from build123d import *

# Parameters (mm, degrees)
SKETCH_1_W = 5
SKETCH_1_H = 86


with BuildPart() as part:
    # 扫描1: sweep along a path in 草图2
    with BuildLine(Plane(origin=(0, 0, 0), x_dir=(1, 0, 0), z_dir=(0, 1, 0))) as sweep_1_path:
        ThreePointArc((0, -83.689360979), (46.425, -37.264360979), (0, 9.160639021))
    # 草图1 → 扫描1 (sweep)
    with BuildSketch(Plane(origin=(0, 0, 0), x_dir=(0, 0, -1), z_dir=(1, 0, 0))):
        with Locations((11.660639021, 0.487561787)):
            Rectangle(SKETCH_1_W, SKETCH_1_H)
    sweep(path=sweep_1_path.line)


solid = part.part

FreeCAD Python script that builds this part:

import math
import FreeCAD as App
import Part
import Sketcher
from FreeCAD import Vector

doc = App.newDocument("Part")
params = doc.addObject("Spreadsheet::Sheet", "Params")
for row, (alias, value) in enumerate([
    ("sketch1_width", "86 mm"),
    ("sketch1_height", "5 mm"),
], start=1):
    params.set(f"A{row}", alias)
    params.set(f"B{row}", "=" + value)
    params.setAlias(f"B{row}", alias)

body = doc.addObject("PartDesign::Body", "Body")

# Sketch on YZ plane
sketch1 = doc.addObject("Sketcher::SketchObject", "Sketch")
body.addObject(sketch1)
sketch1.AttachmentSupport = (doc.YZ_Plane, [""])
sketch1.MapMode = "FlatFace"
sketch1.addGeometry(Part.LineSegment(Vector(43, -9, 0), Vector(-43, -9, 0)), False)
sketch1.addGeometry(Part.LineSegment(Vector(-43, -9, 0), Vector(-43, -14, 0)), False)
sketch1.addGeometry(Part.LineSegment(Vector(-43, -14, 0), Vector(43, -14, 0)), False)
sketch1.addGeometry(Part.LineSegment(Vector(43, -14, 0), Vector(43, -9, 0)), False)
sketch1.addConstraint(Sketcher.Constraint("Coincident", 0, 2, 1, 1))
sketch1.addConstraint(Sketcher.Constraint("Coincident", 1, 2, 2, 1))
sketch1.addConstraint(Sketcher.Constraint("Coincident", 2, 2, 3, 1))
sketch1.addConstraint(Sketcher.Constraint("Coincident", 3, 2, 0, 1))
sketch1.addConstraint(Sketcher.Constraint("Horizontal", 0))
sketch1.addConstraint(Sketcher.Constraint("Vertical", 1))
sketch1.addConstraint(Sketcher.Constraint("Horizontal", 2))
sketch1.addConstraint(Sketcher.Constraint("Vertical", 3))
sketch1.addConstraint(Sketcher.Constraint("DistanceX", 0, 2, 0, 1, 86.0))
sketch1.addConstraint(Sketcher.Constraint("DistanceY", 1, 2, 1, 1, 5.0))
sketch1.addConstraint(Sketcher.Constraint("DistanceX", 0, 2, -1, 1, 42.512438))
sketch1.addConstraint(Sketcher.Constraint("DistanceY", 0, 2, -1, 1, 9.160639))
sketch1.setExpression("Constraints[8]", "Params.sketch1_width")
sketch1.setExpression("Constraints[9]", "Params.sketch1_height")

# Sketch on XZ plane
sketch2 = doc.addObject("Sketcher::SketchObject", "Sketch001")
body.addObject(sketch2)
sketch2.AttachmentSupport = (doc.XZ_Plane, [""])
sketch2.MapMode = "FlatFace"
sketch2.addGeometry(Part.ArcOfCircle(Part.Circle(Vector(0, 37, 0), Vector(0, 0, 1), 46), math.radians(-90), math.radians(90)), False)
sketch2.addConstraint(Sketcher.Constraint("PointOnObject", 0, 3, -2))
sketch2.addConstraint(Sketcher.Constraint("PointOnObject", 0, 1, -2))
sketch2.addConstraint(Sketcher.Constraint("PointOnObject", 0, 2, -2))
sketch2.addConstraint(Sketcher.Constraint("Radius", 0, 46.425))
sketch2.addConstraint(Sketcher.Constraint("DistanceY", -1, 1, 0, 3, 37.264361))
doc.recompute()

additivepipe = doc.addObject("PartDesign::AdditivePipe", "AdditivePipe")
body.addObject(additivepipe)
additivepipe.Profile = sketch1
additivepipe.Spine = (sketch2, ["Edge1"])

doc.recompute()
